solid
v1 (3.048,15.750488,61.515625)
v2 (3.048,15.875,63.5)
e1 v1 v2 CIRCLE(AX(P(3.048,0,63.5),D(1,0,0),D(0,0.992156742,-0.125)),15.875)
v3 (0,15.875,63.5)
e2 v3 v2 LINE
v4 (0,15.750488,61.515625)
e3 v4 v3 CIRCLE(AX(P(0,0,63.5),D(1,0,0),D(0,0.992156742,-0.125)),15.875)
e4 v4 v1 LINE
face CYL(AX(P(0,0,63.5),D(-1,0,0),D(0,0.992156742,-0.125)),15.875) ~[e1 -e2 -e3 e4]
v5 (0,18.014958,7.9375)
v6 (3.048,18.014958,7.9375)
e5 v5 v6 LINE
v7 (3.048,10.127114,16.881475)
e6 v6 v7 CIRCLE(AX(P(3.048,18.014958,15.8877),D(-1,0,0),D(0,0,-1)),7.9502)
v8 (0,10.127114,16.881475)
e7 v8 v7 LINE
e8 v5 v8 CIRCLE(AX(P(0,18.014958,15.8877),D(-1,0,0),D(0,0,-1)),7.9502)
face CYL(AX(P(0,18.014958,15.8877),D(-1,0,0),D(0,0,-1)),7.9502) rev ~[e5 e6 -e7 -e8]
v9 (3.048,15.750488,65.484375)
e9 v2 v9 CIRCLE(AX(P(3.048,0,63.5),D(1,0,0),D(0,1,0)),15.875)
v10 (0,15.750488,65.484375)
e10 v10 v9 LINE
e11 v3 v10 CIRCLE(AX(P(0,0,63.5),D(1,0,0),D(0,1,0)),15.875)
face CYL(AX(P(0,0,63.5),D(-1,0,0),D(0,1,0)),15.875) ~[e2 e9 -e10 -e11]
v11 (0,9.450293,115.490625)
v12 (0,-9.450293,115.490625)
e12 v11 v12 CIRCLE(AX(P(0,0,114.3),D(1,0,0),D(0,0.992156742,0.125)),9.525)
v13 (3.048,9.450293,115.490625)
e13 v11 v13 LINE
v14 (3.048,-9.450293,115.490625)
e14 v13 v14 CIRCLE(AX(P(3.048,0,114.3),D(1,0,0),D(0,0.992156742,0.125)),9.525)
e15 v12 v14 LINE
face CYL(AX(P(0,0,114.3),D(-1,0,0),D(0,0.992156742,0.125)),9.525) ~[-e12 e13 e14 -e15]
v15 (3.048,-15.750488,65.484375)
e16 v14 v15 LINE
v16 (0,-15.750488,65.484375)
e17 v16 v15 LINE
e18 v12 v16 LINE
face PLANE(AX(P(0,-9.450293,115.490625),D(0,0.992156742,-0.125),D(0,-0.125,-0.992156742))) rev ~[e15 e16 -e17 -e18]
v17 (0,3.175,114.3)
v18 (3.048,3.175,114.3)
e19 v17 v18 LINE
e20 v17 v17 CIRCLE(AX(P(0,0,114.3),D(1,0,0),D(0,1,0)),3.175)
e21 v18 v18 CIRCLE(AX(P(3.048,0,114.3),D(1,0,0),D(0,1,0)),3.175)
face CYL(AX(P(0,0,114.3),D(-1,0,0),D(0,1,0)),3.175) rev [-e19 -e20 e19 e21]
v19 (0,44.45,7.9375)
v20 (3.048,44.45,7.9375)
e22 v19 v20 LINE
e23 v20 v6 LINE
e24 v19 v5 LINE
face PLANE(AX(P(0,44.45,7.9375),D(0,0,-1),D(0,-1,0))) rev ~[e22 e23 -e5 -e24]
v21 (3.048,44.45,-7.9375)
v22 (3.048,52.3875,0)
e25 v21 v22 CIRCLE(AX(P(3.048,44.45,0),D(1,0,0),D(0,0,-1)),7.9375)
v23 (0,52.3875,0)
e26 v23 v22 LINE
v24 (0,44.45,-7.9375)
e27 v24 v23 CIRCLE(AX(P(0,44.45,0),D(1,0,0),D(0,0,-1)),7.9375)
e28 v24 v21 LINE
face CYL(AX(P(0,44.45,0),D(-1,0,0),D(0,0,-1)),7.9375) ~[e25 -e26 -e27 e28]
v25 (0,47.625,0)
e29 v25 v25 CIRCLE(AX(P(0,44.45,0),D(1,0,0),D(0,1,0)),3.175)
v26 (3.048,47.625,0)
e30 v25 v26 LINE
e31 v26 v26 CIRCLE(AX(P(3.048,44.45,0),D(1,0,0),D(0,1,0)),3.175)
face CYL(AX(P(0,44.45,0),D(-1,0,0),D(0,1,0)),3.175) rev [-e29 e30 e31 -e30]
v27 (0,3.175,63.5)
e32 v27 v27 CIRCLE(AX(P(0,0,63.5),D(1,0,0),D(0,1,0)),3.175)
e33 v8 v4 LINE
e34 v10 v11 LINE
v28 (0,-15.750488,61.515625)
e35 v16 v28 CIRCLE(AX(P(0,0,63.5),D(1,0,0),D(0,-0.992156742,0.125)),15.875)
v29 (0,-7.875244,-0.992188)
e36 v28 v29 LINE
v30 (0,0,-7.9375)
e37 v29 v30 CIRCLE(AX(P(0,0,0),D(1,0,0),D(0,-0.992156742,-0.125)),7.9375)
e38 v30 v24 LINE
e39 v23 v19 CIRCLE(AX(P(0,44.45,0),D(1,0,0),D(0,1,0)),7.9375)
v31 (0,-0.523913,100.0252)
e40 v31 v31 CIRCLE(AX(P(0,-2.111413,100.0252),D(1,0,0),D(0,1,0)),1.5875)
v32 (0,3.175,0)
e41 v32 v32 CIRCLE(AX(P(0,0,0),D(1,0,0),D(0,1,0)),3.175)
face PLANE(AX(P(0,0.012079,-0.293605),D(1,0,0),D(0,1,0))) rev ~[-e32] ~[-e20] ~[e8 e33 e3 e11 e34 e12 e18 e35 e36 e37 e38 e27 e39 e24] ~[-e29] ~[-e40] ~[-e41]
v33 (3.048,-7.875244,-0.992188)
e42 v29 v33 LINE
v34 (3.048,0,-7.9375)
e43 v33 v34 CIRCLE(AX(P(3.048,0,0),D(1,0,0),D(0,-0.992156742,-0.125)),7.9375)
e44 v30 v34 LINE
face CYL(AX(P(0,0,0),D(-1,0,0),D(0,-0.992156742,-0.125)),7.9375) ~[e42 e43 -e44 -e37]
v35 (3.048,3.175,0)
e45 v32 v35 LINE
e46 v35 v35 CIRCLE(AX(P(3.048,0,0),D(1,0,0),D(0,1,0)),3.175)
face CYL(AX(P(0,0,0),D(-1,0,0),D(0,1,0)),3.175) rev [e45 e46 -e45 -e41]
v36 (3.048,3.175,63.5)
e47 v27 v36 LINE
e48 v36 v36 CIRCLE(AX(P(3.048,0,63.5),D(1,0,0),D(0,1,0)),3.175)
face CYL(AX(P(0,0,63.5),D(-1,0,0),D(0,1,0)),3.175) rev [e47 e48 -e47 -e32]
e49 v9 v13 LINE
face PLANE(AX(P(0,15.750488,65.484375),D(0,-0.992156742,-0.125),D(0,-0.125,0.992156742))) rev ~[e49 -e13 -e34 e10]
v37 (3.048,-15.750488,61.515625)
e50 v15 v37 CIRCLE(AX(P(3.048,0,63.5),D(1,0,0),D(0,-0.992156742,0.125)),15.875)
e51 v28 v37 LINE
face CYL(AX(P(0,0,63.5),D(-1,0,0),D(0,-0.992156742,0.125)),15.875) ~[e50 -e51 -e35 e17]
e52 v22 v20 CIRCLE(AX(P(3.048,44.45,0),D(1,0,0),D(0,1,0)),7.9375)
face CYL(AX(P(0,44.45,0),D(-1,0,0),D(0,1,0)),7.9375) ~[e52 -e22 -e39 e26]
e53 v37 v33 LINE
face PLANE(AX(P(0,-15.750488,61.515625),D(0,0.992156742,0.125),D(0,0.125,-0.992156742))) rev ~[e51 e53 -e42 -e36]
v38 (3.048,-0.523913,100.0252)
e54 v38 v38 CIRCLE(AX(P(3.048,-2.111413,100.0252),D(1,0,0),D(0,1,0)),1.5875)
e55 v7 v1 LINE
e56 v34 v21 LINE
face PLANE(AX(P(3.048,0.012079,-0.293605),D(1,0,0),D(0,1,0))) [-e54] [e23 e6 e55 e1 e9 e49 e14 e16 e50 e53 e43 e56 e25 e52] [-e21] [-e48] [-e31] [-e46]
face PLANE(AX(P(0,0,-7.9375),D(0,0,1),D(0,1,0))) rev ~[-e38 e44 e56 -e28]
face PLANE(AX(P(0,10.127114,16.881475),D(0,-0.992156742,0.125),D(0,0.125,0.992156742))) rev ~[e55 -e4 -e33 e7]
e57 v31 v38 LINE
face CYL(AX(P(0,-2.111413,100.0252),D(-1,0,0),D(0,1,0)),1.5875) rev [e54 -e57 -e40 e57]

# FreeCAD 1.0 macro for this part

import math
import FreeCAD as App
import Part
import Sketcher

V = App.Vector
Q = App.Units.Quantity

doc = App.newDocument("Part")
params = doc.addObject("Spreadsheet::Sheet", "Params")
for row, (alias, value) in enumerate([
    ("sketch1_diameter", "0.25 in"),
    ("sketch1_diameter2", "0.125 in"),
    ("sketch1_radius", "0.3125 in"),
    ("sketch1_radius2", "0.313 in"),
    ("sketch1_radius3", "0.625 in"),
    ("pad1_length", "0.12 in"),
], start=1):
    params.set(f"A{row}", alias)
    params.set(f"B{row}", "=" + value)
    params.setAlias(f"B{row}", alias)

body = doc.addObject("PartDesign::Body", "Body")

sketch1 = body.newObject("Sketcher::SketchObject", "Sketch")
sketch1.AttachmentSupport = (doc.getObject("YZ_Plane"), [""])
sketch1.MapMode = "FlatFace"
sketch1.addGeometry([
    Part.ArcOfCircle(Part.Circle(V(0, 0, 0), V(0, 0, 1), 7.9), math.radians(-173), math.radians(-90)),
    Part.LineSegment(V(0, -7.9, 0), V(44.5, -7.9, 0)),
    Part.ArcOfCircle(Part.Circle(V(44.5, 0, 0), V(0, 0, 1), 7.9), math.radians(-90), math.radians(0)),
    Part.ArcOfCircle(Part.Circle(V(44.5, 0, 0), V(0, 0, 1), 7.9), math.radians(0), math.radians(90)),
    Part.LineSegment(V(44.5, 7.9, 0), V(18, 7.9, 0)),
    Part.ArcOfCircle(Part.Circle(V(18, 15.9, 0), V(0, 0, 1), 8), math.radians(173), math.radians(270)),
    Part.LineSegment(V(10.1, 16.9, 0), V(15.8, 61.5, 0)),
    Part.ArcOfCircle(Part.Circle(V(0, 63.5, 0), V(0, 0, 1), 15.9), math.radians(-7.18), math.radians(0)),
    Part.ArcOfCircle(Part.Circle(V(0, 63.5, 0), V(0, 0, 1), 15.9), math.radians(0), math.radians(7.18)),
    Part.LineSegment(V(15.8, 65.5, 0), V(9.5, 115.5, 0)),
    Part.ArcOfCircle(Part.Circle(V(0, 114.3, 0), V(0, 0, 1), 9.5), math.radians(7), math.radians(173)),
    Part.LineSegment(V(-9.5, 115.5, 0), V(-15.8, 65.5, 0)),
    Part.ArcOfCircle(Part.Circle(V(0, 63.5, 0), V(0, 0, 1), 15.9), math.radians(172.82), math.radians(187.18)),
    Part.LineSegment(V(-15.8, 61.5, 0), V(-7.9, -1, 0)),
    Part.Circle(V(0, 0, 0), V(0, 0, 1), 3.2),
    Part.Circle(V(44.5, 0, 0), V(0, 0, 1), 3.2),
    Part.Circle(V(0, 63.5, 0), V(0, 0, 1), 3.2),
    Part.Circle(V(-2.1, 100, 0), V(0, 0, 1), 1.6),
    Part.Circle(V(0, 114.3, 0), V(0, 0, 1), 3.2),
], False)
sketch1.addConstraint([
    Sketcher.Constraint("Tangent", 0, 2, 1, 1),
    Sketcher.Constraint("Tangent", 1, 2, 2, 1),
    Sketcher.Constraint("Tangent", 2, 2, 3, 1),
    Sketcher.Constraint("Tangent", 3, 2, 4, 1),
    Sketcher.Constraint("Tangent", 4, 2, 5, 2),
    Sketcher.Constraint("Tangent", 5, 1, 6, 1),
    Sketcher.Constraint("Tangent", 6, 2, 7, 1),
    Sketcher.Constraint("Tangent", 7, 2, 8, 1),
    Sketcher.Constraint("Tangent", 8, 2, 9, 1),
    Sketcher.Constraint("Tangent", 9, 2, 10, 1),
    Sketcher.Constraint("Tangent", 10, 2, 11, 1),
    Sketcher.Constraint("Tangent", 11, 2, 12, 1),
    Sketcher.Constraint("Tangent", 12, 2, 13, 1),
    Sketcher.Constraint("Tangent", 13, 2, 0, 1),
    Sketcher.Constraint("Horizontal", 1),
    Sketcher.Constraint("Horizontal", 4),
    Sketcher.Constraint("Coincident", 0, 3, -1, 1),
    Sketcher.Constraint("Coincident", 14, 3, -1, 1),
    Sketcher.Constraint("Coincident", 12, 3, 7, 3),
    Sketcher.Constraint("Coincident", 15, 3, 2, 3),
    Sketcher.Constraint("Coincident", 16, 3, 7, 3),
    Sketcher.Constraint("Coincident", 18, 3, 10, 3),
    Sketcher.Constraint("Equal", 0, 2),
    Sketcher.Constraint("Equal", 2, 3),
    Sketcher.Constraint("Equal", 7, 8),
    Sketcher.Constraint("Equal", 8, 12),
    Sketcher.Constraint("Equal", 14, 15),
    Sketcher.Constraint("Equal", 15, 16),
    Sketcher.Constraint("Equal", 16, 18),
    Sketcher.Constraint("Symmetric", 9, 2, 10, 2, -2),
    Sketcher.Constraint("PointOnObject", 2, 2, -1),
    Sketcher.Constraint("Parallel", 6, 11),
    Sketcher.Constraint("Parallel", 9, 13),
    Sketcher.Constraint("Horizontal", 16, 3, 7, 2),
    Sketcher.Constraint("Diameter", 14, Q("0.25 in")),
    Sketcher.Constraint("Diameter", 17, Q("0.125 in")),
    Sketcher.Constraint("Radius", 0, Q("0.3125 in")),
    Sketcher.Constraint("Radius", 5, Q("0.313 in")),
    Sketcher.Constraint("Radius", 7, Q("0.625 in")),
    Sketcher.Constraint("Radius", 10, Q("0.375 in")),
    Sketcher.Constraint("DistanceY", 7, 3, 10, 3, Q("2 in")),
    Sketcher.Constraint("DistanceX", 1, 1, 1, 2, Q("1.75 in")),
    Sketcher.Constraint("DistanceY", -1, 1, 17, 3, Q("3.938 in")),
    Sketcher.Constraint("DistanceX", 17, 3, 6, 2, 17.861901),
])
sketch1.setExpression("Constraints[34]", "Params.sketch1_diameter")
sketch1.setExpression("Constraints[35]", "Params.sketch1_diameter2")
sketch1.setExpression("Constraints[36]", "Params.sketch1_radius")
sketch1.setExpression("Constraints[37]", "Params.sketch1_radius2")
sketch1.setExpression("Constraints[38]", "Params.sketch1_radius3")
pad1 = body.newObject("PartDesign::Pad", "Pad")
pad1.Profile = sketch1
pad1.setExpression("Length", "Params.pad1_length")

doc.recompute()
